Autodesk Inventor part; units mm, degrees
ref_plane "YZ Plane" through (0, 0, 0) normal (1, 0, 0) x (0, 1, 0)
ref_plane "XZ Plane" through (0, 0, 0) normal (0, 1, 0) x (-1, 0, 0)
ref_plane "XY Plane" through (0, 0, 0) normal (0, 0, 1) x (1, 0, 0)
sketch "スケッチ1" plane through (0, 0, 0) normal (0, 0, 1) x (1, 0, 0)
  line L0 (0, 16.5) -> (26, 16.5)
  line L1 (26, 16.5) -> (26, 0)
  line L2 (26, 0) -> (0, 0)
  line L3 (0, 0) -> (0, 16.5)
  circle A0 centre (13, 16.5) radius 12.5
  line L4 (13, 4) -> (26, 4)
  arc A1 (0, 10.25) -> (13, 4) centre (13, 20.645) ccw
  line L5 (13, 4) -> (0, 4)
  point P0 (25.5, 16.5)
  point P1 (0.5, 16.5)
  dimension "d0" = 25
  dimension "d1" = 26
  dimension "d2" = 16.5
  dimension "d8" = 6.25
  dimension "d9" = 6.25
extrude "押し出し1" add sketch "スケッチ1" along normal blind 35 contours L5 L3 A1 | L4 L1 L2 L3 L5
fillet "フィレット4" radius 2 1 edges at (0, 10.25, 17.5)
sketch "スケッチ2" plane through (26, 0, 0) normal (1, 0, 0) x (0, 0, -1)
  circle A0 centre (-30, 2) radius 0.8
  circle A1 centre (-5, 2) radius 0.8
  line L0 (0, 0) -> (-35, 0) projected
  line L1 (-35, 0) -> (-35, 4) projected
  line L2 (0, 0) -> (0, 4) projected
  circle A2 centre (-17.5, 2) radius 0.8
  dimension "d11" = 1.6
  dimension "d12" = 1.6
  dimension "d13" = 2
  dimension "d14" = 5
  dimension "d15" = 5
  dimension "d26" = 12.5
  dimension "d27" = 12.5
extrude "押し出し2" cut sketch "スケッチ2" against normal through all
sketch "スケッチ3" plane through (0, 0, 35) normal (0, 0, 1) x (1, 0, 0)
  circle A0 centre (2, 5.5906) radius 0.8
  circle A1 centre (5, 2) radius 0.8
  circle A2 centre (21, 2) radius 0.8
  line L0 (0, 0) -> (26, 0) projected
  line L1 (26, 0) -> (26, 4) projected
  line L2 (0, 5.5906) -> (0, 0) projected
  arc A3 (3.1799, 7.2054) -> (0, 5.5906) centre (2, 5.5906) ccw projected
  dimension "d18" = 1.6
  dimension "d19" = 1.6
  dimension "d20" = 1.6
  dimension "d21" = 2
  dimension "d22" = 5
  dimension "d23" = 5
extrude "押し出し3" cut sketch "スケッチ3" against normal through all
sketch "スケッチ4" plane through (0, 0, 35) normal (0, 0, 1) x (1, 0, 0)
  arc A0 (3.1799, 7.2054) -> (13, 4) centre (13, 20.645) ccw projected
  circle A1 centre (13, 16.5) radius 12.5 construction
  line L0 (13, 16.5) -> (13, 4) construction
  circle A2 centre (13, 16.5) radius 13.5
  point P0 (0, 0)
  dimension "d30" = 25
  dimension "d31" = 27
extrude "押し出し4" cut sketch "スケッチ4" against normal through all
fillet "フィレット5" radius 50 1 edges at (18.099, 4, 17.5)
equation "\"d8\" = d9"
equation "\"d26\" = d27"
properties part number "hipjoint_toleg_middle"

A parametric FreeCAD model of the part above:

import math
import FreeCAD as App
import Part
import Sketcher
from FreeCAD import Vector
Q = App.Units.Quantity


def edges_at(feature, points):
    """Names of the edges that pass closest to the given points."""
    edges = feature.Shape.Edges
    near = lambda p: min(range(len(edges)), key=lambda i: edges[i].distToShape(Part.Vertex(*p))[0])
    return sorted({f"Edge{near(p) + 1}" for p in points})

doc = App.newDocument("Part")
body = doc.addObject("PartDesign::Body", "Body")

sketch1 = doc.addObject("Sketcher::SketchObject", "Sketch")
body.addObject(sketch1)
sketch1.AttachmentSupport = (doc.XY_Plane, [""])
sketch1.MapMode = "FlatFace"
sketch1.addGeometry([
    Part.LineSegment(Vector(0, 10.25, 0), Vector(0, 0, 0)),
    Part.LineSegment(Vector(0, 0, 0), Vector(26, 0, 0)),
    Part.LineSegment(Vector(26, 0, 0), Vector(26, 4, 0)),
    Part.LineSegment(Vector(26, 4, 0), Vector(13, 4, 0)),
    Part.ArcOfCircle(Part.Circle(Vector(13, 20.645, 0), Vector(0, 0, 1), 16.645), math.radians(-141.353631), math.radians(-90)),
], False)
sketch1.addConstraint([
    Sketcher.Constraint("Coincident", 0, 2, 1, 1),
    Sketcher.Constraint("Coincident", 1, 2, 2, 1),
    Sketcher.Constraint("Coincident", 2, 2, 3, 1),
    Sketcher.Constraint("Tangent", 3, 2, 4, 2),
    Sketcher.Constraint("Coincident", 4, 1, 0, 1),
    Sketcher.Constraint("Vertical", 0),
    Sketcher.Constraint("Horizontal", 1),
    Sketcher.Constraint("Vertical", 2),
    Sketcher.Constraint("Horizontal", 3),
    Sketcher.Constraint("Coincident", 0, 2, -1, 1),
    Sketcher.Constraint("DistanceX", 1, 1, 1, 2, Q("26 mm")),
    Sketcher.Constraint("DistanceX", 3, 2, 3, 1, Q("13 mm")),
    Sketcher.Constraint("DistanceY", 2, 1, 2, 2, Q("4 mm")),
    Sketcher.Constraint("DistanceY", 3, 2, 4, 1, Q("6.25 mm")),
])
pad1 = doc.addObject("PartDesign::Pad", "Pad")
body.addObject(pad1)
pad1.Profile = sketch1
pad1.Length = 35
doc.recompute()

fillet = doc.addObject("PartDesign::Fillet", "Fillet")
body.addObject(fillet)
fillet.Base = (pad1, edges_at(pad1, [(0, 10.25, 17.5)]))
fillet.Radius = 2

sketch2 = doc.addObject("Sketcher::SketchObject", "Sketch001")
body.addObject(sketch2)
sketch2.AttachmentSupport = (doc.YZ_Plane, [""])
sketch2.MapMode = "FlatFace"
sketch2.AttachmentOffset = App.Placement(Vector(0, 0, 26), App.Rotation())
sketch2.addGeometry([
    Part.Circle(Vector(2, 30, 0), Vector(0, 0, 1), 0.8),
    Part.Circle(Vector(2, 5, 0), Vector(0, 0, 1), 0.8),
    Part.Circle(Vector(2, 17.5, 0), Vector(0, 0, 1), 0.8),
], False)
sketch2.addConstraint([
    Sketcher.Constraint("Equal", 0, 1),
    Sketcher.Constraint("Equal", 1, 2),
    Sketcher.Constraint("Vertical", 0, 3, 1, 3),
    Sketcher.Constraint("Vertical", 1, 3, 2, 3),
    Sketcher.Constraint("Diameter", 0, Q("1.6 mm")),
    Sketcher.Constraint("DistanceX", -1, 1, 0, 3, Q("2 mm")),
    Sketcher.Constraint("DistanceY", -1, 1, 1, 3, Q("5 mm")),
    Sketcher.Constraint("DistanceY", 2, 3, 0, 3, Q("12.5 mm")),
    Sketcher.Constraint("DistanceY", 1, 3, 2, 3, Q("12.5 mm")),
])
pocket1 = doc.addObject("PartDesign::Pocket", "Pocket")
body.addObject(pocket1)
pocket1.Profile = sketch2
pocket1.Type = "ThroughAll"

sketch3 = doc.addObject("Sketcher::SketchObject", "Sketch002")
body.addObject(sketch3)
sketch3.AttachmentSupport = (doc.XY_Plane, [""])
sketch3.MapMode = "FlatFace"
sketch3.AttachmentOffset = App.Placement(Vector(0, 0, 35), App.Rotation())
sketch3.addGeometry([
    Part.Circle(Vector(2, 5.5906, 0), Vector(0, 0, 1), 0.8),
    Part.Circle(Vector(5, 2, 0), Vector(0, 0, 1), 0.8),
    Part.Circle(Vector(21, 2, 0), Vector(0, 0, 1), 0.8),
], False)
sketch3.addConstraint([
    Sketcher.Constraint("Equal", 0, 1),
    Sketcher.Constraint("Equal", 1, 2),
    Sketcher.Constraint("Horizontal", 1, 3, 2, 3),
    Sketcher.Constraint("Diameter", 0, Q("1.6 mm")),
    Sketcher.Constraint("DistanceX", -1, 1, 0, 3, Q("2 mm")),
    Sketcher.Constraint("DistanceX", -1, 1, 1, 3, Q("5 mm")),
    Sketcher.Constraint("DistanceY", -1, 1, 1, 3, Q("2 mm")),
    Sketcher.Constraint("DistanceX", -1, 1, 2, 3, Q("21 mm")),
    Sketcher.Constraint("DistanceY", -1, 1, 0, 3, Q("5.5906 mm")),
])
pocket2 = doc.addObject("PartDesign::Pocket", "Pocket001")
body.addObject(pocket2)
pocket2.Profile = sketch3
pocket2.Type = "ThroughAll"

sketch4 = doc.addObject("Sketcher::SketchObject", "Sketch003")
body.addObject(sketch4)
sketch4.AttachmentSupport = (doc.XY_Plane, [""])
sketch4.MapMode = "FlatFace"
sketch4.AttachmentOffset = App.Placement(Vector(0, 0, 35), App.Rotation())
sketch4.addGeometry(Part.Circle(Vector(13, 16.5, 0), Vector(0, 0, 1), 13.5), False)
sketch4.addConstraint([
    Sketcher.Constraint("Diameter", 0, Q("27 mm")),
    Sketcher.Constraint("DistanceX", -1, 1, 0, 3, Q("13 mm")),
    Sketcher.Constraint("DistanceY", -1, 1, 0, 3, Q("16.5 mm")),
])
pocket3 = doc.addObject("PartDesign::Pocket", "Pocket002")
body.addObject(pocket3)
pocket3.Profile = sketch4
pocket3.Type = "ThroughAll"
doc.recompute()

fillet2 = doc.addObject("PartDesign::Fillet", "Fillet001")
body.addObject(fillet2)
fillet2.Base = (pocket3, edges_at(pocket3, [(18.099, 4, 17.5)]))
fillet2.Radius = 50

doc.recompute()
